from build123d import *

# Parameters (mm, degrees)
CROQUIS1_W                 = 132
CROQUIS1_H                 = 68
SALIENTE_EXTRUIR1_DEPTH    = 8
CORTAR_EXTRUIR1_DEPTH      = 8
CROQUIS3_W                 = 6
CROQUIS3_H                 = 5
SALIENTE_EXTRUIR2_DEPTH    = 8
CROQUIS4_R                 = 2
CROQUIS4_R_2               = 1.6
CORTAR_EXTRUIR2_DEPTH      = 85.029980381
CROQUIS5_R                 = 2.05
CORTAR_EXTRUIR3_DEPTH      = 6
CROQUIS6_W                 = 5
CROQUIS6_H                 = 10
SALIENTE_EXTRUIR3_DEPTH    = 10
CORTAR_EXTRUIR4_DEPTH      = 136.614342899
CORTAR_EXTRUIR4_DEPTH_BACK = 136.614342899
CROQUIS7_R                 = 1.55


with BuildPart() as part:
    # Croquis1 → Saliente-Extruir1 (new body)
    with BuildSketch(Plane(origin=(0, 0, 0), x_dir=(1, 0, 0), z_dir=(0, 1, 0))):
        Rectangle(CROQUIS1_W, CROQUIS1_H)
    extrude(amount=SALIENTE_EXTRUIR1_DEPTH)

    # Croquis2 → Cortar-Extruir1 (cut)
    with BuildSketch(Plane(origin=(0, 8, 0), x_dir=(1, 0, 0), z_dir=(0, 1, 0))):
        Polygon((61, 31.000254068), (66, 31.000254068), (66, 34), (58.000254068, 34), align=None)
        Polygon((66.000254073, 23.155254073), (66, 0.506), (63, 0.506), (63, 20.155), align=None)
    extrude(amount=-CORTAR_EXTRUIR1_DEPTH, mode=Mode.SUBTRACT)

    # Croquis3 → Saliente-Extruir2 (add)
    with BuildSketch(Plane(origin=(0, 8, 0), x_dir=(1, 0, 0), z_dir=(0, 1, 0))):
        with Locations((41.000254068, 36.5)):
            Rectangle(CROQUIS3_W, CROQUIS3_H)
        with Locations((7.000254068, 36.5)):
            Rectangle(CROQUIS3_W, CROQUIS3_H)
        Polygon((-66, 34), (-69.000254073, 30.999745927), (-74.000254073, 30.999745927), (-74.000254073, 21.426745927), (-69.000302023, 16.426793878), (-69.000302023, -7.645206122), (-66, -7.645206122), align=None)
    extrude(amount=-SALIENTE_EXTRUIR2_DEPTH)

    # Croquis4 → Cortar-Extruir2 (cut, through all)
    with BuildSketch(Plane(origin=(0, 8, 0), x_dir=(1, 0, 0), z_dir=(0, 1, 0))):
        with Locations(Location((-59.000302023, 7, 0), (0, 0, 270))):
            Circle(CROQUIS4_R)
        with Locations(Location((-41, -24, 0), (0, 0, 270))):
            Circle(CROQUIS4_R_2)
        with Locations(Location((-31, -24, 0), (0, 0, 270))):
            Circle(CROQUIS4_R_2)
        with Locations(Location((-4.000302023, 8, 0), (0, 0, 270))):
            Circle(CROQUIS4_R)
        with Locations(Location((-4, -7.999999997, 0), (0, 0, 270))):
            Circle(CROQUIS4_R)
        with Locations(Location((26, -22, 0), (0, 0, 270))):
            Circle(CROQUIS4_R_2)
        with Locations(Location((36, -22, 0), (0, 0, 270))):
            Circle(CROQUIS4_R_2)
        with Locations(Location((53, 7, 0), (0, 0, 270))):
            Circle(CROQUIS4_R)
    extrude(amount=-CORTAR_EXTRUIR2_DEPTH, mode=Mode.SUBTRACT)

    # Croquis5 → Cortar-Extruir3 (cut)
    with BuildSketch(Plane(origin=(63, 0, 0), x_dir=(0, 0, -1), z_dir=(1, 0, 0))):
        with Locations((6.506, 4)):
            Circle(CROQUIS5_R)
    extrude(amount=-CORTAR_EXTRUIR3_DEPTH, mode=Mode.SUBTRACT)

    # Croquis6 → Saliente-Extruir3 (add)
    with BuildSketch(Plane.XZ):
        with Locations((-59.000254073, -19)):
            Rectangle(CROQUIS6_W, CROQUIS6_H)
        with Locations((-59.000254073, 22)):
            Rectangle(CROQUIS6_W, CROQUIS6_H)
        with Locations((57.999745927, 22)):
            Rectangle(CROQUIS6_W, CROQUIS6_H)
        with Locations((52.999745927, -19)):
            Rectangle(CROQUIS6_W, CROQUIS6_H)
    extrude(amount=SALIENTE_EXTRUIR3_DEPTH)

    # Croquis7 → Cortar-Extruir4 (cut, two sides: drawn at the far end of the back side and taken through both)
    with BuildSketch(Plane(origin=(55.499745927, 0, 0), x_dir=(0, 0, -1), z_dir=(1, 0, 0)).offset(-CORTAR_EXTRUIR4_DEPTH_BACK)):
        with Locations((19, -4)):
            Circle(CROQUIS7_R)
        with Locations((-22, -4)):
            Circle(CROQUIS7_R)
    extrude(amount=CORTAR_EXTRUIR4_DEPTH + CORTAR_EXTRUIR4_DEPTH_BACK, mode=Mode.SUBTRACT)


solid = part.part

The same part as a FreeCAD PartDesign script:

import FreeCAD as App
import Part
import Sketcher
from FreeCAD import Vector
Q = App.Units.Quantity

doc = App.newDocument("Part")
body = doc.addObject("PartDesign::Body", "Body")

# Sketch on XZ plane
sketch1 = body.newObject("Sketcher::SketchObject", "Sketch")
sketch1.AttachmentSupport = (doc.getObject("XZ_Plane"), [""])
sketch1.MapMode = "FlatFace"
sketch1.addGeometry([
    Part.LineSegment(Vector(-66, -34, 0), Vector(-66, 34, 0)),
    Part.LineSegment(Vector(-66, 34, 0), Vector(66, 34, 0)),
    Part.LineSegment(Vector(66, 34, 0), Vector(66, -34, 0)),
    Part.LineSegment(Vector(66, -34, 0), Vector(-66, -34, 0)),
], False)
sketch1.addConstraint([
    Sketcher.Constraint("Coincident", 0, 2, 1, 1),
    Sketcher.Constraint("Coincident", 1, 2, 2, 1),
    Sketcher.Constraint("Coincident", 2, 2, 3, 1),
    Sketcher.Constraint("Coincident", 3, 2, 0, 1),
    Sketcher.Constraint("Vertical", 0),
    Sketcher.Constraint("Horizontal", 1),
    Sketcher.Constraint("Vertical", 2),
    Sketcher.Constraint("Horizontal", 3),
    Sketcher.Constraint("Symmetric", 0, 2, 2, 2, -1, 1),
    Sketcher.Constraint("DistanceX", 1, 1, 1, 2, 132.0),
    Sketcher.Constraint("DistanceY", 0, 1, 0, 2, 68.0),
])
pad1 = body.newObject("PartDesign::Pad", "Pad")
pad1.Profile = sketch1
pad1.Length = 8
pad1.Reversed = True

# Sketch on XZ plane
sketch2 = body.newObject("Sketcher::SketchObject", "Sketch001")
sketch2.AttachmentSupport = (doc.getObject("XZ_Plane"), [""])
sketch2.MapMode = "FlatFace"
sketch2.AttachmentOffset = App.Placement(Vector(0, 0, -8), App.Rotation())
sketch2.addGeometry([
    Part.LineSegment(Vector(61, -31, 0), Vector(66, -31, 0)),  # 0
    Part.LineSegment(Vector(66, -31, 0), Vector(66, -34, 0)),  # 1
    Part.LineSegment(Vector(66, -34, 0), Vector(58, -34, 0)),  # 2
    Part.LineSegment(Vector(58, -34, 0), Vector(61, -31, 0)),  # 3
    Part.LineSegment(Vector(66, -0.5, 0), Vector(66, -23.2, 0)),  # 4
    Part.LineSegment(Vector(66, -23.2, 0), Vector(63, -20.2, 0)),  # 5
    Part.LineSegment(Vector(63, -20.2, 0), Vector(63, -0.5, 0)),  # 6
    Part.LineSegment(Vector(63, -0.5, 0), Vector(66, -0.5, 0)),  # 7
], False)
sketch2.addConstraint([
    Sketcher.Constraint("Coincident", 0, 2, 1, 1),
    Sketcher.Constraint("Coincident", 1, 2, 2, 1),
    Sketcher.Constraint("Coincident", 2, 2, 3, 1),
    Sketcher.Constraint("Coincident", 3, 2, 0, 1),
    Sketcher.Constraint("Coincident", 4, 2, 5, 1),
    Sketcher.Constraint("Coincident", 5, 2, 6, 1),
    Sketcher.Constraint("Coincident", 6, 2, 7, 1),
    Sketcher.Constraint("Coincident", 7, 2, 4, 1),
    Sketcher.Constraint("Horizontal", 0),
    Sketcher.Constraint("Vertical", 1),
    Sketcher.Constraint("Horizontal", 2),
    Sketcher.Constraint("Vertical", 6),
    Sketcher.Constraint("Horizontal", 7),
    Sketcher.Constraint("Perpendicular", 3, 5),
    Sketcher.Constraint("Vertical", 1, 2, 7, 2),
    Sketcher.Constraint("DistanceX", 0, 1, 0, 2, 5.0),
    Sketcher.Constraint("DistanceX", 7, 1, 7, 2, 3.0),
    Sketcher.Constraint("Angle", 3, Q("45 deg")),
    Sketcher.Constraint("DistanceX", -1, 1, 0, 2, 66.0),
    Sketcher.Constraint("DistanceY", 1, 2, -1, 1, 34.0),
    Sketcher.Constraint("DistanceX", 2, 2, 4, 2, 8.0),
    Sketcher.Constraint("DistanceY", 6, 1, 6, 2, 19.649),
    Sketcher.Constraint("Distance", 5, 4.243),
    Sketcher.Constraint("DistanceY", 5, 2, -1, 1, 20.155),
])
pocket1 = body.newObject("PartDesign::Pocket", "Pocket")
pocket1.Profile = sketch2
pocket1.Length = 8
pocket1.Reversed = True

# Sketch on XZ plane
sketch3 = body.newObject("Sketcher::SketchObject", "Sketch002")
sketch3.AttachmentSupport = (doc.getObject("XZ_Plane"), [""])
sketch3.MapMode = "FlatFace"
sketch3.AttachmentOffset = App.Placement(Vector(0, 0, -8), App.Rotation())
sketch3.addGeometry([
    Part.LineSegment(Vector(38, -39, 0), Vector(38, -34, 0)),  # 0
    Part.LineSegment(Vector(38, -34, 0), Vector(44, -34, 0)),  # 1
    Part.LineSegment(Vector(44, -34, 0), Vector(44, -39, 0)),  # 2
    Part.LineSegment(Vector(44, -39, 0), Vector(38, -39, 0)),  # 3
    Part.LineSegment(Vector(4, -39, 0), Vector(4, -34, 0)),  # 4
    Part.LineSegment(Vector(4, -34, 0), Vector(10, -34, 0)),  # 5
    Part.LineSegment(Vector(10, -34, 0), Vector(10, -39, 0)),  # 6
    Part.LineSegment(Vector(10, -39, 0), Vector(4, -39, 0)),  # 7
    Part.LineSegment(Vector(-66, -34, 0), Vector(-69, -31, 0)),  # 8
    Part.LineSegment(Vector(-69, -31, 0), Vector(-74, -31, 0)),  # 9
    Part.LineSegment(Vector(-74, -31, 0), Vector(-74, -21.4, 0)),  # 10
    Part.LineSegment(Vector(-74, -21.4, 0), Vector(-69, -16.4, 0)),  # 11
    Part.LineSegment(Vector(-69, -16.4, 0), Vector(-69, 7.6, 0)),  # 12
    Part.LineSegment(Vector(-69, 7.6, 0), Vector(-66, 7.6, 0)),  # 13
    Part.LineSegment(Vector(-66, 7.6, 0), Vector(-66, -34, 0)),  # 14
], False)
sketch3.addConstraint([
    Sketcher.Constraint("Coincident", 0, 2, 1, 1),
    Sketcher.Constraint("Coincident", 1, 2, 2, 1),
    Sketcher.Constraint("Coincident", 2, 2, 3, 1),
    Sketcher.Constraint("Coincident", 3, 2, 0, 1),
    Sketcher.Constraint("Coincident", 4, 2, 5, 1),
    Sketcher.Constraint("Coincident", 5, 2, 6, 1),
    Sketcher.Constraint("Coincident", 6, 2, 7, 1),
    Sketcher.Constraint("Coincident", 7, 2, 4, 1),
    Sketcher.Constraint("Coincident", 8, 2, 9, 1),
    Sketcher.Constraint("Coincident", 9, 2, 10, 1),
    Sketcher.Constraint("Coincident", 10, 2, 11, 1),
    Sketcher.Constraint("Coincident", 11, 2, 12, 1),
    Sketcher.Constraint("Coincident", 12, 2, 13, 1),
    Sketcher.Constraint("Coincident", 13, 2, 14, 1),
    Sketcher.Constraint("Coincident", 14, 2, 8, 1),
    Sketcher.Constraint("Vertical", 0),
    Sketcher.Constraint("Horizontal", 1),
    Sketcher.Constraint("Vertical", 2),
    Sketcher.Constraint("Horizontal", 3),
    Sketcher.Constraint("Vertical", 4),
    Sketcher.Constraint("Horizontal", 5),
    Sketcher.Constraint("Vertical", 6),
    Sketcher.Constraint("Horizontal", 7),
    Sketcher.Constraint("Horizontal", 9),
    Sketcher.Constraint("Vertical", 10),
    Sketcher.Constraint("Vertical", 12),
    Sketcher.Constraint("Horizontal", 13),
    Sketcher.Constraint("Vertical", 14),
    Sketcher.Constraint("Perpendicular", 8, 11),
    Sketcher.Constraint("Horizontal", 1, 2, 4, 2),
    Sketcher.Constraint("Horizontal", 3, 2, 6, 2),
    Sketcher.Constraint("Horizontal", 5, 2, 14, 2),
    Sketcher.Constraint("Equal", 3, 5),
    Sketcher.Constraint("Equal", 9, 0),
    Sketcher.Constraint("DistanceX", 1, 1, 1, 2, 6.0),
    Sketcher.Constraint("DistanceX", 9, 2, 9, 1, 5.0),
    Sketcher.Constraint("Angle", 8, Q("135 deg")),
    Sketcher.Constraint("DistanceY", 0, 2, -1, 1, 34.0),
    Sketcher.Constraint("DistanceX", 13, 2, -1, 1, 66.0),
    Sketcher.Constraint("DistanceX", 4, 2, 0, 2, 34.0),
    Sketcher.Constraint("DistanceY", 10, 1, 10, 2, 9.573),
    Sketcher.Constraint("DistanceY", 12, 1, 12, 2, 24.072),
    Sketcher.Constraint("Distance", 8, 4.243),
    Sketcher.Constraint("Distance", 11, 7.071),
    Sketcher.Constraint("DistanceX", 8, 2, 4, 2, 73.000508),
])
pad2 = body.newObject("PartDesign::Pad", "Pad001")
pad2.Profile = sketch3
pad2.Length = 8

# Sketch on XZ plane
sketch4 = body.newObject("Sketcher::SketchObject", "Sketch003")
sketch4.AttachmentSupport = (doc.getObject("XZ_Plane"), [""])
sketch4.MapMode = "FlatFace"
sketch4.AttachmentOffset = App.Placement(Vector(0, 0, -8), App.Rotation())
sketch4.addGeometry([
    Part.Circle(Vector(-59, -7, 0), Vector(0, 0, 1), 2),  # 0
    Part.Circle(Vector(-41, 24, 0), Vector(0, 0, 1), 1.6),  # 1
    Part.Circle(Vector(-31, 24, 0), Vector(0, 0, 1), 1.6),  # 2
    Part.Circle(Vector(-4, -8, 0), Vector(0, 0, 1), 2),  # 3
    Part.Circle(Vector(-4, 8, 0), Vector(0, 0, 1), 2),  # 4
    Part.Circle(Vector(26, 22, 0), Vector(0, 0, 1), 1.6),  # 5
    Part.Circle(Vector(36, 22, 0), Vector(0, 0, 1), 1.6),  # 6
    Part.Circle(Vector(53, -7, 0), Vector(0, 0, 1), 2),  # 7
], False)
sketch4.addConstraint([
    Sketcher.Constraint("Equal", 1, 2),
    Sketcher.Constraint("Equal", 0, 3),
    Sketcher.Constraint("Equal", 3, 4),
    Sketcher.Constraint("Equal", 2, 5),
    Sketcher.Constraint("Equal", 5, 6),
    Sketcher.Constraint("Equal", 4, 7),
    Sketcher.Constraint("Horizontal", 1, 3, 2, 3),
    Sketcher.Constraint("Horizontal", 5, 3, 6, 3),
    Sketcher.Constraint("Horizontal", 0, 3, 7, 3),
    Sketcher.Constraint("Diameter", 0, 4.0),
    Sketcher.Constraint("Diameter", 1, 3.2),
    Sketcher.Constraint("DistanceY", 0, 3, -1, 1, 7.0),
    Sketcher.Constraint("DistanceX", 1, 3, -1, 1, 41.0),
    Sketcher.Constraint("DistanceY", -1, 1, 1, 3, 24.0),
    Sketcher.Constraint("DistanceX", 2, 3, -1, 1, 31.0),
    Sketcher.Constraint("DistanceY", 3, 3, -1, 1, 8.0),
    Sketcher.Constraint("DistanceX", 4, 3, -1, 1, 4.0),
    Sketcher.Constraint("DistanceY", -1, 1, 4, 3, 8.0),
    Sketcher.Constraint("DistanceX", -1, 1, 5, 3, 26.0),
    Sketcher.Constraint("DistanceY", -1, 1, 5, 3, 22.0),
    Sketcher.Constraint("DistanceX", -1, 1, 6, 3, 36.0),
    Sketcher.Constraint("DistanceX", -1, 1, 7, 3, 53.0),
    Sketcher.Constraint("DistanceX", 0, 3, 3, 3, 55.0),
    Sketcher.Constraint("DistanceX", 0, 3, -1, 1, 59.000302),
])
pocket2 = body.newObject("PartDesign::Pocket", "Pocket001")
pocket2.Profile = sketch4
pocket2.Type = "ThroughAll"
pocket2.Reversed = True

# Sketch on YZ plane
sketch5 = body.newObject("Sketcher::SketchObject", "Sketch004")
sketch5.AttachmentSupport = (doc.getObject("YZ_Plane"), [""])
sketch5.MapMode = "FlatFace"
sketch5.AttachmentOffset = App.Placement(Vector(0, 0, 63), App.Rotation())
sketch5.addGeometry(Part.Circle(Vector(4, -6.5, 0), Vector(0, 0, 1), 2), False)
sketch5.addConstraint([
    Sketcher.Constraint("Diameter", 0, 4.1),
    Sketcher.Constraint("DistanceX", -1, 1, 0, 3, 4.0),
    Sketcher.Constraint("DistanceY", 0, 3, -1, 1, 6.506),
])
pocket3 = body.newObject("PartDesign::Pocket", "Pocket002")
pocket3.Profile = sketch5
pocket3.Length = 6

# Sketch on XZ plane
sketch6 = body.newObject("Sketcher::SketchObject", "Sketch005")
sketch6.AttachmentSupport = (doc.getObject("XZ_Plane"), [""])
sketch6.MapMode = "FlatFace"
sketch6.addGeometry([
    Part.LineSegment(Vector(-62, -14, 0), Vector(-62, -24, 0)),  # 0
    Part.LineSegment(Vector(-62, -24, 0), Vector(-57, -24, 0)),  # 1
    Part.LineSegment(Vector(-57, -24, 0), Vector(-57, -14, 0)),  # 2
    Part.LineSegment(Vector(-57, -14, 0), Vector(-62, -14, 0)),  # 3
    Part.LineSegment(Vector(-62, 27, 0), Vector(-62, 17, 0)),  # 4
    Part.LineSegment(Vector(-62, 17, 0), Vector(-57, 17, 0)),  # 5
    Part.LineSegment(Vector(-57, 17, 0), Vector(-57, 27, 0)),  # 6
    Part.LineSegment(Vector(-57, 27, 0), Vector(-62, 27, 0)),  # 7
    Part.LineSegment(Vector(55, 27, 0), Vector(55, 17, 0)),  # 8
    Part.LineSegment(Vector(55, 17, 0), Vector(60, 17, 0)),  # 9
    Part.LineSegment(Vector(60, 17, 0), Vector(60, 27, 0)),  # 10
    Part.LineSegment(Vector(60, 27, 0), Vector(55, 27, 0)),  # 11
    Part.LineSegment(Vector(50, -14, 0), Vector(50, -24, 0)),  # 12
    Part.LineSegment(Vector(50, -24, 0), Vector(55, -24, 0)),  # 13
    Part.LineSegment(Vector(55, -24, 0), Vector(55, -14, 0)),  # 14
    Part.LineSegment(Vector(55, -14, 0), Vector(50, -14, 0)),  # 15
], False)
sketch6.addConstraint([
    Sketcher.Constraint("Coincident", 0, 2, 1, 1),
    Sketcher.Constraint("Coincident", 1, 2, 2, 1),
    Sketcher.Constraint("Coincident", 2, 2, 3, 1),
    Sketcher.Constraint("Coincident", 3, 2, 0, 1),
    Sketcher.Constraint("Coincident", 4, 2, 5, 1),
    Sketcher.Constraint("Coincident", 5, 2, 6, 1),
    Sketcher.Constraint("Coincident", 6, 2, 7, 1),
    Sketcher.Constraint("Coincident", 7, 2, 4, 1),
    Sketcher.Constraint("Coincident", 8, 2, 9, 1),
    Sketcher.Constraint("Coincident", 9, 2, 10, 1),
    Sketcher.Constraint("Coincident", 10, 2, 11, 1),
    Sketcher.Constraint("Coincident", 11, 2, 8, 1),
    Sketcher.Constraint("Coincident", 12, 2, 13, 1),
    Sketcher.Constraint("Coincident", 13, 2, 14, 1),
    Sketcher.Constraint("Coincident", 14, 2, 15, 1),
    Sketcher.Constraint("Coincident", 15, 2, 12, 1),
    Sketcher.Constraint("Vertical", 0),
    Sketcher.Constraint("Horizontal", 1),
    Sketcher.Constraint("Vertical", 2),
    Sketcher.Constraint("Horizontal", 3),
    Sketcher.Constraint("Vertical", 4),
    Sketcher.Constraint("Horizontal", 5),
    Sketcher.Constraint("Vertical", 6),
    Sketcher.Constraint("Horizontal", 7),
    Sketcher.Constraint("Vertical", 8),
    Sketcher.Constraint("Horizontal", 9),
    Sketcher.Constraint("Vertical", 10),
    Sketcher.Constraint("Horizontal", 11),
    Sketcher.Constraint("Vertical", 12),
    Sketcher.Constraint("Horizontal", 13),
    Sketcher.Constraint("Vertical", 14),
    Sketcher.Constraint("Horizontal", 15),
    Sketcher.Constraint("Horizontal", 5, 2, 8, 2),
    Sketcher.Constraint("Horizontal", 7, 2, 10, 2),
    Sketcher.Constraint("Horizontal", 1, 2, 12, 2),
    Sketcher.Constraint("Horizontal", 3, 2, 14, 2),
    Sketcher.Constraint("Vertical", 3, 2, 4, 2),
    Sketcher.Constraint("Vertical", 2, 2, 5, 2),
    Sketcher.Constraint("Vertical", 11, 2, 13, 2),
    Sketcher.Constraint("Equal", 7, 9),
    Sketcher.Constraint("Equal", 11, 13),
    Sketcher.Constraint("Equal", 2, 4),
    Sketcher.Constraint("DistanceX", 1, 1, 1, 2, 5.0),
    Sketcher.Constraint("DistanceY", 0, 2, 0, 1, 10.0),
    Sketcher.Constraint("DistanceY", 0, 2, -1, 1, 24.0),
    Sketcher.Constraint("DistanceY", -1, 1, 4, 2, 17.0),
    Sketcher.Constraint("DistanceX", 5, 2, 8, 2, 112.0),
    Sketcher.Constraint("DistanceX", 0, 2, -1, 1, 61.500254),
])
pad3 = body.newObject("PartDesign::Pad", "Pad002")
pad3.Profile = sketch6
pad3.Length = 10

# Sketch on YZ plane
sketch7 = body.newObject("Sketcher::SketchObject", "Sketch006")
sketch7.AttachmentSupport = (doc.getObject("YZ_Plane"), [""])
sketch7.MapMode = "FlatFace"
sketch7.AttachmentOffset = App.Placement(Vector(0, 0, 55.499746), App.Rotation())
sketch7.addGeometry([
    Part.Circle(Vector(-4, -19, 0), Vector(0, 0, 1), 1.6),
    Part.Circle(Vector(-4, 22, 0), Vector(0, 0, 1), 1.6),
], False)
sketch7.addConstraint([
    Sketcher.Constraint("Equal", 0, 1),
    Sketcher.Constraint("Vertical", 0, 3, 1, 3),
    Sketcher.Constraint("Diameter", 0, 3.1),
    Sketcher.Constraint("DistanceX", 0, 3, -1, 1, 4.0),
    Sketcher.Constraint("DistanceY", 0, 3, -1, 1, 19.0),
    Sketcher.Constraint("DistanceY", -1, 1, 1, 3, 22.0),
])
pocket4 = body.newObject("PartDesign::Pocket", "Pocket003")
pocket4.Profile = sketch7
pocket4.Type = "ThroughAll"
pocket4.Midplane = True

doc.recompute()
